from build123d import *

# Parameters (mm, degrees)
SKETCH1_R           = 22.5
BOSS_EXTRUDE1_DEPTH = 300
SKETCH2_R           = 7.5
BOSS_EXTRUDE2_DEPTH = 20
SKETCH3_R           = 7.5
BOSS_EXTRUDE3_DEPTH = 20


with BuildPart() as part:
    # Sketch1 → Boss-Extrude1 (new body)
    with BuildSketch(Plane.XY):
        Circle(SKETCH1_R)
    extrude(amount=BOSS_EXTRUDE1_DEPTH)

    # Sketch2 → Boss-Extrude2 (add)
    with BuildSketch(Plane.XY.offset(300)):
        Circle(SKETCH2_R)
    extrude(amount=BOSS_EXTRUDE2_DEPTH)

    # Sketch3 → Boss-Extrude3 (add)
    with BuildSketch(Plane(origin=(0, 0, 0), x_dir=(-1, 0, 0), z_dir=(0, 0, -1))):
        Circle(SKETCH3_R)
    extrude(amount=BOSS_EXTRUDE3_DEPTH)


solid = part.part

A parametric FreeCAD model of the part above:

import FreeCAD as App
import Part
import Sketcher

V = App.Vector

doc = App.newDocument("Part")
params = doc.addObject("Spreadsheet::Sheet", "Params")
for row, (alias, value) in enumerate([
    ("sketch1_diameter", "45 mm"),
    ("pad1_length", "300 mm"),
    ("sketch2_diameter", "15 mm"),
    ("pad2_length", "20 mm"),
    ("sketch3_diameter", "15 mm"),
    ("pad3_length", "20 mm"),
], start=1):
    params.set(f"A{row}", alias)
    params.set(f"B{row}", "=" + value)
    params.setAlias(f"B{row}", alias)

body = doc.addObject("PartDesign::Body", "Body")

# Sketch on XY plane
sketch1 = body.newObject("Sketcher::SketchObject", "Sketch")
sketch1.AttachmentSupport = (doc.getObject("XY_Plane"), [""])
sketch1.MapMode = "FlatFace"
sketch1.addGeometry(Part.Circle(V(0, 0, 0), V(0, 0, 1), 22), False)
sketch1.addConstraint([
    Sketcher.Constraint("Coincident", 0, 3, -1, 1),
    Sketcher.Constraint("Diameter", 0, 45.0),
])
sketch1.setExpression("Constraints[1]", "Params.sketch1_diameter")
pad1 = body.newObject("PartDesign::Pad", "Pad")
pad1.Profile = sketch1
pad1.setExpression("Length", "Params.pad1_length")

# Sketch on XY plane
sketch2 = body.newObject("Sketcher::SketchObject", "Sketch001")
sketch2.AttachmentSupport = (doc.getObject("XY_Plane"), [""])
sketch2.MapMode = "FlatFace"
sketch2.AttachmentOffset = App.Placement(V(0, 0, 300), App.Rotation())
sketch2.addGeometry(Part.Circle(V(0, 0, 0), V(0, 0, 1), 8), False)
sketch2.addConstraint([
    Sketcher.Constraint("Coincident", 0, 3, -1, 1),
    Sketcher.Constraint("Diameter", 0, 15.0),
])
sketch2.setExpression("Constraints[1]", "Params.sketch2_diameter")
pad2 = body.newObject("PartDesign::Pad", "Pad001")
pad2.Profile = sketch2
pad2.setExpression("Length", "Params.pad2_length")

# Sketch on XY plane
sketch3 = body.newObject("Sketcher::SketchObject", "Sketch002")
sketch3.AttachmentSupport = (doc.getObject("XY_Plane"), [""])
sketch3.MapMode = "FlatFace"
sketch3.addGeometry(Part.Circle(V(0, 0, 0), V(0, 0, 1), 8), False)
sketch3.addConstraint([
    Sketcher.Constraint("Coincident", 0, 3, -1, 1),
    Sketcher.Constraint("Diameter", 0, 15.0),
])
sketch3.setExpression("Constraints[1]", "Params.sketch3_diameter")
pad3 = body.newObject("PartDesign::Pad", "Pad002")
pad3.Profile = sketch3
pad3.setExpression("Length", "Params.pad3_length")
pad3.Reversed = True

doc.recompute()
